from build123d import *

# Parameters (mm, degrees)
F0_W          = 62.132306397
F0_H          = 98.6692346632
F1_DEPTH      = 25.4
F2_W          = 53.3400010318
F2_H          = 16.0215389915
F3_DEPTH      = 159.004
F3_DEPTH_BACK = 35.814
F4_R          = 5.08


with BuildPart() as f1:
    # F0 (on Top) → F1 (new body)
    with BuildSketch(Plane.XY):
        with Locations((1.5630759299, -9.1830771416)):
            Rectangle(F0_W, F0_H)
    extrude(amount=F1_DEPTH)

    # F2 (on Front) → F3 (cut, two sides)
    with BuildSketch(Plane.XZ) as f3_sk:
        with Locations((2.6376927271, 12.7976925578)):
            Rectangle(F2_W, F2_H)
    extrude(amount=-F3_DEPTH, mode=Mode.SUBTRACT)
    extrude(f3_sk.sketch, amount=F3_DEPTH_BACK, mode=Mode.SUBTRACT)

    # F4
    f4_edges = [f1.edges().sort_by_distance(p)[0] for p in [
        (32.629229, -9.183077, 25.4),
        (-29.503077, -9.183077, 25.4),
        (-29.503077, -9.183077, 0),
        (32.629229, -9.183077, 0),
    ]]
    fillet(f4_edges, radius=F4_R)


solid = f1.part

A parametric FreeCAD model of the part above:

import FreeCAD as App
import Part
import Sketcher
Q = App.Units.Quantity


def edges_at(feature, points):
    """Names of the edges that pass closest to the given points."""
    edges = feature.Shape.Edges
    near = lambda p: min(range(len(edges)), key=lambda i: edges[i].distToShape(Part.Vertex(*p))[0])
    return sorted({f"Edge{near(p) + 1}" for p in points})


def add_polygon(sketch, points):
    """Adds a closed chain of lines whose ends are joined by coincident constraints."""
    first, n = sketch.GeometryCount, len(points)
    for a, b in zip(points, points[1:] + points[:1]):
        sketch.addGeometry(Part.LineSegment(App.Vector(*a, 0), App.Vector(*b, 0)), False)
    for i in range(n):
        sketch.addConstraint(Sketcher.Constraint("Coincident", first + i, 2, first + (i + 1) % n, 1))

doc = App.newDocument("Part")
body = doc.addObject("PartDesign::Body", "Body")

# Sketch on XY plane
sketch1 = body.newObject("Sketcher::SketchObject", "Sketch")
sketch1.AttachmentSupport = (doc.getObject("XY_Plane"), [""])
sketch1.MapMode = "FlatFace"
add_polygon(sketch1, [(-30, 40), (-30, -59), (33, -59), (33, 40)])  # lines 0-3
sketch1.addConstraint(Sketcher.Constraint("Vertical", 0))
sketch1.addConstraint(Sketcher.Constraint("Horizontal", 1))
sketch1.addConstraint(Sketcher.Constraint("Vertical", 2))
sketch1.addConstraint(Sketcher.Constraint("Horizontal", 3))
sketch1.addConstraint(Sketcher.Constraint("DistanceX", 1, 1, 1, 2, 62.132306))
sketch1.addConstraint(Sketcher.Constraint("DistanceY", 0, 2, 0, 1, 98.669235))
sketch1.addConstraint(Sketcher.Constraint("DistanceX", -1, 1, 1, 2, 32.629229))
sketch1.addConstraint(Sketcher.Constraint("DistanceY", -1, 1, 2, 2, 40.15154))
pad1 = body.newObject("PartDesign::Pad", "Pad")
pad1.Profile = sketch1
pad1.Length = Q("1 in")

# Sketch on XZ plane
sketch2 = body.newObject("Sketcher::SketchObject", "Sketch001")
sketch2.AttachmentSupport = (doc.getObject("XZ_Plane"), [""])
sketch2.MapMode = "FlatFace"
add_polygon(sketch2, [(-24, 21), (-24, 5), (29, 5), (29, 21)])  # lines 0-3
sketch2.addConstraint(Sketcher.Constraint("Vertical", 0))
sketch2.addConstraint(Sketcher.Constraint("Horizontal", 1))
sketch2.addConstraint(Sketcher.Constraint("Vertical", 2))
sketch2.addConstraint(Sketcher.Constraint("Horizontal", 3))
sketch2.addConstraint(Sketcher.Constraint("DistanceX", 1, 1, 1, 2, Q("2.1 in")))
sketch2.addConstraint(Sketcher.Constraint("DistanceY", 0, 2, 0, 1, 16.021539))
sketch2.addConstraint(Sketcher.Constraint("DistanceX", 0, 2, -1, 1, 24.032308))
sketch2.addConstraint(Sketcher.Constraint("DistanceY", -1, 1, 0, 2, 4.786923))
pocket1 = body.newObject("PartDesign::Pocket", "Pocket")
pocket1.Profile = sketch2
pocket1.Type = "TwoLengths"
pocket1.Length = Q("6.26 in")
pocket1.Length2 = Q("1.41 in")
doc.recompute()

fillet = body.newObject("PartDesign::Fillet", "Fillet")
fillet.Base = (pocket1, edges_at(pocket1, [
    (32.629, -9.183, 25.4),
    (-29.503, -9.183, 25.4),
    (-29.503, -9.183, 0),
    (32.629, -9.183, 0),
]))
fillet.Radius = Q("0.2 in")

doc.recompute()
